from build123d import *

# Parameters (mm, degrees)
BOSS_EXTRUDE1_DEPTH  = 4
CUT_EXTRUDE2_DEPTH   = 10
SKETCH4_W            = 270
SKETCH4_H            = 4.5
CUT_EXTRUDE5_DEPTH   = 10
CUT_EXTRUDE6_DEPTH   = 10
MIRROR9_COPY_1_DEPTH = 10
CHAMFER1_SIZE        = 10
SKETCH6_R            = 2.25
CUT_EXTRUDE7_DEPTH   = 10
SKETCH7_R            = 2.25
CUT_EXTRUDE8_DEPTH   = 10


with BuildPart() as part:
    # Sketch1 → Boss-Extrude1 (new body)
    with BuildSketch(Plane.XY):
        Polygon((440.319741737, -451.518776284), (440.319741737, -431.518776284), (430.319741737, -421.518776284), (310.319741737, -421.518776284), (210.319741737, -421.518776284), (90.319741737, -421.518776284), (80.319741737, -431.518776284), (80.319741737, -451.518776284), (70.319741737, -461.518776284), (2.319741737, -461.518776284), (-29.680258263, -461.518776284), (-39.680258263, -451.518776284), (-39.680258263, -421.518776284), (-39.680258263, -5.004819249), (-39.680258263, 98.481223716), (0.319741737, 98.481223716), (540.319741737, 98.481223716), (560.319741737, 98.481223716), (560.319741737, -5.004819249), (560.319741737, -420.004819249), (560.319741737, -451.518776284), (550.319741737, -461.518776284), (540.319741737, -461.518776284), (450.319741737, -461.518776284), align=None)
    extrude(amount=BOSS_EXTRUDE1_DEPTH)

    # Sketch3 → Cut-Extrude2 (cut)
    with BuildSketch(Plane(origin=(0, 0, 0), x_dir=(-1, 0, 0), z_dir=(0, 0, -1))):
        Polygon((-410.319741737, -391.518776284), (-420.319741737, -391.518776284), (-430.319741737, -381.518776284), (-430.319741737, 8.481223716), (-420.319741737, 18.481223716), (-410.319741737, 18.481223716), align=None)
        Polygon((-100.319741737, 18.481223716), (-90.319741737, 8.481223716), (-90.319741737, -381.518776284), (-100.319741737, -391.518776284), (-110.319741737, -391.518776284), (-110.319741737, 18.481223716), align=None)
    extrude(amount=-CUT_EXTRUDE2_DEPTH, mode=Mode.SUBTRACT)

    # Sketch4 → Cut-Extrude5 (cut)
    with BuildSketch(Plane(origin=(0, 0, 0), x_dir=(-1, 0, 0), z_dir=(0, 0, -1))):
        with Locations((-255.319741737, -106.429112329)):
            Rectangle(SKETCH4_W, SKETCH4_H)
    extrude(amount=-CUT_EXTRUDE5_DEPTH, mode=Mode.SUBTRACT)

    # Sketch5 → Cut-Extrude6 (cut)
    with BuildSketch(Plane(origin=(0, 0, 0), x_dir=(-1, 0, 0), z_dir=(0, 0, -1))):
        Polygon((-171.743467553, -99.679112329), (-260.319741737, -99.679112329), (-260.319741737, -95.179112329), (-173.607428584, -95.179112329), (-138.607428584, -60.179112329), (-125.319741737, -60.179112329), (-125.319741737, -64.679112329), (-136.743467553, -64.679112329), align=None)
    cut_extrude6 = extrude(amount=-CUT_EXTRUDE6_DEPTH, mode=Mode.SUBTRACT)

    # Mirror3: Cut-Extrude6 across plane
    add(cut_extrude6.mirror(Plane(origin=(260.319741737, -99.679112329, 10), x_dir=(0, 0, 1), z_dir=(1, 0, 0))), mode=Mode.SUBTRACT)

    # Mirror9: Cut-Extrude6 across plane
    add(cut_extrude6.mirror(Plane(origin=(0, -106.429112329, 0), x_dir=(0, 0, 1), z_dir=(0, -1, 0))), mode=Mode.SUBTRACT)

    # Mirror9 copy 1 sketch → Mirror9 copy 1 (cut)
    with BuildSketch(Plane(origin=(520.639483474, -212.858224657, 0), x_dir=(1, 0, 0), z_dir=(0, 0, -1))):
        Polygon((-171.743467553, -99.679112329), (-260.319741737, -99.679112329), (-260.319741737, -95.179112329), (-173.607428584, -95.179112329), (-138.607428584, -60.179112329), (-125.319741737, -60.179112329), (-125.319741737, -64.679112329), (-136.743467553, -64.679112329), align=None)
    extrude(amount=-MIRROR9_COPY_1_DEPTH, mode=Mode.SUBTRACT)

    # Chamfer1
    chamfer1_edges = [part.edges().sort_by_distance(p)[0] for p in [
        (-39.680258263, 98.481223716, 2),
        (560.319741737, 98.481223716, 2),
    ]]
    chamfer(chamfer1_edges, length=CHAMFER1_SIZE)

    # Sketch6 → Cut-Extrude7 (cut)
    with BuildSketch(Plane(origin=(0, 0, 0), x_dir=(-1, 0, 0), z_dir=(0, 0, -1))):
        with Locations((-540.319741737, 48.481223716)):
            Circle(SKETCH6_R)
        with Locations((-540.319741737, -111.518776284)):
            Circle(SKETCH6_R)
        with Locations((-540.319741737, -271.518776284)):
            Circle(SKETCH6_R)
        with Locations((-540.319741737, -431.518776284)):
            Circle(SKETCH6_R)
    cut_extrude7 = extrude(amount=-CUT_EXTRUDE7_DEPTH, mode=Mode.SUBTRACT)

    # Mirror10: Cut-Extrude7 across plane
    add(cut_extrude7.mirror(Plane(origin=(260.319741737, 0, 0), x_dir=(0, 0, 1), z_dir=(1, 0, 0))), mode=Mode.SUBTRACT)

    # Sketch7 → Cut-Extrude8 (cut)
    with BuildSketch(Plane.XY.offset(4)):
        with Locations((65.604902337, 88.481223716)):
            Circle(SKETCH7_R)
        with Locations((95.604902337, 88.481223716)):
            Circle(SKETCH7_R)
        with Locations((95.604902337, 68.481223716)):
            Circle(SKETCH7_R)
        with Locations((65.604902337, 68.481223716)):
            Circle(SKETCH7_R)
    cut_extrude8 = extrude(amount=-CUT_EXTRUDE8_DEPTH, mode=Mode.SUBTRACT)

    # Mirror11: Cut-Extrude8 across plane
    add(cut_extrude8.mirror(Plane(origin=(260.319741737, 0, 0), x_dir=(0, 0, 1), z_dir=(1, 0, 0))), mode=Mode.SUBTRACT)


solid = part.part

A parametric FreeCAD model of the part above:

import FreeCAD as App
import Part
import Sketcher

V = App.Vector
Q = App.Units.Quantity


def edges_at(feature, points):
    """Names of the edges that pass closest to the given points."""
    edges = feature.Shape.Edges
    near = lambda p: min(range(len(edges)), key=lambda i: edges[i].distToShape(Part.Vertex(*p))[0])
    return sorted({f"Edge{near(p) + 1}" for p in points})

doc = App.newDocument("Part")
body = doc.addObject("PartDesign::Body", "Body")

# Sketch on XY plane
sketch1 = body.newObject("Sketcher::SketchObject", "Sketch")
sketch1.AttachmentSupport = (doc.getObject("XY_Plane"), [""])
sketch1.MapMode = "FlatFace"
sketch1.addGeometry(Part.LineSegment(V(440, -432, 0), V(440, -452, 0)), False)
sketch1.addGeometry(Part.LineSegment(V(440, -452, 0), V(450, -462, 0)), False)
sketch1.addGeometry(Part.LineSegment(V(450, -462, 0), V(550, -462, 0)), False)
sketch1.addGeometry(Part.LineSegment(V(550, -462, 0), V(560, -452, 0)), False)
sketch1.addGeometry(Part.LineSegment(V(560, -452, 0), V(560, 98, 0)), False)
sketch1.addGeometry(Part.LineSegment(V(560, 98, 0), V(-40, 98, 0)), False)
sketch1.addGeometry(Part.LineSegment(V(-40, 98, 0), V(-40, -452, 0)), False)
sketch1.addGeometry(Part.LineSegment(V(-40, -452, 0), V(-30, -462, 0)), False)
sketch1.addGeometry(Part.LineSegment(V(-30, -462, 0), V(70, -462, 0)), False)
sketch1.addGeometry(Part.LineSegment(V(70, -462, 0), V(80, -452, 0)), False)
sketch1.addGeometry(Part.LineSegment(V(80, -452, 0), V(80, -432, 0)), False)
sketch1.addGeometry(Part.LineSegment(V(80, -432, 0), V(90, -422, 0)), False)
sketch1.addGeometry(Part.LineSegment(V(90, -422, 0), V(430, -422, 0)), False)
sketch1.addGeometry(Part.LineSegment(V(430, -422, 0), V(440, -432, 0)), False)
sketch1.addConstraint(Sketcher.Constraint("Coincident", 0, 2, 1, 1))
sketch1.addConstraint(Sketcher.Constraint("Coincident", 1, 2, 2, 1))
sketch1.addConstraint(Sketcher.Constraint("Coincident", 2, 2, 3, 1))
sketch1.addConstraint(Sketcher.Constraint("Coincident", 3, 2, 4, 1))
sketch1.addConstraint(Sketcher.Constraint("Coincident", 4, 2, 5, 1))
sketch1.addConstraint(Sketcher.Constraint("Coincident", 5, 2, 6, 1))
sketch1.addConstraint(Sketcher.Constraint("Coincident", 6, 2, 7, 1))
sketch1.addConstraint(Sketcher.Constraint("Coincident", 7, 2, 8, 1))
sketch1.addConstraint(Sketcher.Constraint("Coincident", 8, 2, 9, 1))
sketch1.addConstraint(Sketcher.Constraint("Coincident", 9, 2, 10, 1))
sketch1.addConstraint(Sketcher.Constraint("Coincident", 10, 2, 11, 1))
sketch1.addConstraint(Sketcher.Constraint("Coincident", 11, 2, 12, 1))
sketch1.addConstraint(Sketcher.Constraint("Coincident", 12, 2, 13, 1))
sketch1.addConstraint(Sketcher.Constraint("Coincident", 13, 2, 0, 1))
sketch1.addConstraint(Sketcher.Constraint("Vertical", 0))
sketch1.addConstraint(Sketcher.Constraint("Horizontal", 2))
sketch1.addConstraint(Sketcher.Constraint("Vertical", 4))
sketch1.addConstraint(Sketcher.Constraint("Horizontal", 5))
sketch1.addConstraint(Sketcher.Constraint("Vertical", 6))
sketch1.addConstraint(Sketcher.Constraint("Horizontal", 8))
sketch1.addConstraint(Sketcher.Constraint("Vertical", 10))
sketch1.addConstraint(Sketcher.Constraint("Horizontal", 12))
sketch1.addConstraint(Sketcher.Constraint("Perpendicular", 1, 3))
sketch1.addConstraint(Sketcher.Constraint("Perpendicular", 3, 7))
sketch1.addConstraint(Sketcher.Constraint("Perpendicular", 7, 9))
sketch1.addConstraint(Sketcher.Constraint("Parallel", 9, 11))
sketch1.addConstraint(Sketcher.Constraint("Perpendicular", 11, 13))
sketch1.addConstraint(Sketcher.Constraint("Horizontal", 0, 2, 3, 2))
sketch1.addConstraint(Sketcher.Constraint("Horizontal", 3, 2, 6, 2))
sketch1.addConstraint(Sketcher.Constraint("Horizontal", 2, 2, 7, 2))
sketch1.addConstraint(Sketcher.Constraint("Horizontal", 6, 2, 9, 2))
sketch1.addConstraint(Sketcher.Constraint("Horizontal", 10, 2, 13, 2))
sketch1.addConstraint(Sketcher.Constraint("Equal", 2, 8))
sketch1.addConstraint(Sketcher.Constraint("Equal", 1, 3))
sketch1.addConstraint(Sketcher.Constraint("Equal", 9, 11))
sketch1.addConstraint(Sketcher.Constraint("DistanceX", 2, 1, 2, 2, Q("100 mm")))
sketch1.addConstraint(Sketcher.Constraint("DistanceX", 5, 2, 5, 1, Q("600 mm")))
sketch1.addConstraint(Sketcher.Constraint("DistanceX", 12, 1, 12, 2, Q("340 mm")))
sketch1.addConstraint(Sketcher.Constraint("DistanceY", 0, 2, 0, 1, Q("20 mm")))
sketch1.addConstraint(Sketcher.Constraint("DistanceY", 4, 1, 4, 2, Q("550 mm")))
sketch1.addConstraint(Sketcher.Constraint("DistanceX", -1, 1, 0, 2, Q("440.319742 mm")))
sketch1.addConstraint(Sketcher.Constraint("DistanceY", 0, 2, -1, 1, Q("451.518776 mm")))
pad1 = body.newObject("PartDesign::Pad", "Pad")
pad1.Profile = sketch1
pad1.Length = 4

# Sketch on XY plane
sketch2 = body.newObject("Sketcher::SketchObject", "Sketch001")
sketch2.AttachmentSupport = (doc.getObject("XY_Plane"), [""])
sketch2.MapMode = "FlatFace"
sketch2.addGeometry(Part.LineSegment(V(420, -392, 0), V(410, -392, 0)), False)
sketch2.addGeometry(Part.LineSegment(V(410, -392, 0), V(410, 18, 0)), False)
sketch2.addGeometry(Part.LineSegment(V(410, 18, 0), V(420, 18, 0)), False)
sketch2.addGeometry(Part.LineSegment(V(420, 18, 0), V(430, 8, 0)), False)
sketch2.addGeometry(Part.LineSegment(V(430, 8, 0), V(430, -382, 0)), False)
sketch2.addGeometry(Part.LineSegment(V(430, -382, 0), V(420, -392, 0)), False)
sketch2.addGeometry(Part.LineSegment(V(90, 8, 0), V(100, 18, 0)), False)
sketch2.addGeometry(Part.LineSegment(V(100, 18, 0), V(110, 18, 0)), False)
sketch2.addGeometry(Part.LineSegment(V(110, 18, 0), V(110, -392, 0)), False)
sketch2.addGeometry(Part.LineSegment(V(110, -392, 0), V(100, -392, 0)), False)
sketch2.addGeometry(Part.LineSegment(V(100, -392, 0), V(90, -382, 0)), False)
sketch2.addGeometry(Part.LineSegment(V(90, -382, 0), V(90, 8, 0)), False)
sketch2.addConstraint(Sketcher.Constraint("Coincident", 0, 2, 1, 1))
sketch2.addConstraint(Sketcher.Constraint("Coincident", 1, 2, 2, 1))
sketch2.addConstraint(Sketcher.Constraint("Coincident", 2, 2, 3, 1))
sketch2.addConstraint(Sketcher.Constraint("Coincident", 3, 2, 4, 1))
sketch2.addConstraint(Sketcher.Constraint("Coincident", 4, 2, 5, 1))
sketch2.addConstraint(Sketcher.Constraint("Coincident", 5, 2, 0, 1))
sketch2.addConstraint(Sketcher.Constraint("Coincident", 6, 2, 7, 1))
sketch2.addConstraint(Sketcher.Constraint("Coincident", 7, 2, 8, 1))
sketch2.addConstraint(Sketcher.Constraint("Coincident", 8, 2, 9, 1))
sketch2.addConstraint(Sketcher.Constraint("Coincident", 9, 2, 10, 1))
sketch2.addConstraint(Sketcher.Constraint("Coincident", 10, 2, 11, 1))
sketch2.addConstraint(Sketcher.Constraint("Coincident", 11, 2, 6, 1))
sketch2.addConstraint(Sketcher.Constraint("Horizontal", 0))
sketch2.addConstraint(Sketcher.Constraint("Vertical", 1))
sketch2.addConstraint(Sketcher.Constraint("Horizontal", 2))
sketch2.addConstraint(Sketcher.Constraint("Vertical", 4))
sketch2.addConstraint(Sketcher.Constraint("Horizontal", 7))
sketch2.addConstraint(Sketcher.Constraint("Vertical", 8))
sketch2.addConstraint(Sketcher.Constraint("Horizontal", 9))
sketch2.addConstraint(Sketcher.Constraint("Vertical", 11))
sketch2.addConstraint(Sketcher.Constraint("Perpendicular", 3, 5))
sketch2.addConstraint(Sketcher.Constraint("Parallel", 5, 6))
sketch2.addConstraint(Sketcher.Constraint("Perpendicular", 6, 10))
sketch2.addConstraint(Sketcher.Constraint("Horizontal", 2, 2, 6, 2))
sketch2.addConstraint(Sketcher.Constraint("Horizontal", 5, 2, 8, 2))
sketch2.addConstraint(Sketcher.Constraint("Horizontal", 4, 2, 10, 2))
sketch2.addConstraint(Sketcher.Constraint("Horizontal", 3, 2, 11, 2))
sketch2.addConstraint(Sketcher.Constraint("Vertical", 2, 2, 5, 2))
sketch2.addConstraint(Sketcher.Constraint("Vertical", 6, 2, 9, 2))
sketch2.addConstraint(Sketcher.Constraint("Equal", 2, 7))
sketch2.addConstraint(Sketcher.Constraint("DistanceX", 0, 2, 0, 1, Q("10 mm")))
sketch2.addConstraint(Sketcher.Constraint("DistanceY", 1, 1, 1, 2, Q("410 mm")))
sketch2.addConstraint(Sketcher.Constraint("DistanceY", 4, 2, 4, 1, Q("390 mm")))
sketch2.addConstraint(Sketcher.Constraint("DistanceX", 6, 2, 1, 2, Q("310 mm")))
sketch2.addConstraint(Sketcher.Constraint("DistanceX", -1, 1, 0, 2, Q("410.319742 mm")))
sketch2.addConstraint(Sketcher.Constraint("DistanceY", 0, 2, -1, 1, Q("391.518776 mm")))
pocket1 = body.newObject("PartDesign::Pocket", "Pocket")
pocket1.Profile = sketch2
pocket1.Length = 10
pocket1.Reversed = True

# Sketch on XY plane
sketch3 = body.newObject("Sketcher::SketchObject", "Sketch002")
sketch3.AttachmentSupport = (doc.getObject("XY_Plane"), [""])
sketch3.MapMode = "FlatFace"
sketch3.addGeometry(Part.LineSegment(V(390.3, -104.2, 0), V(390.3, -108.7, 0)), False)
sketch3.addGeometry(Part.LineSegment(V(390.3, -108.7, 0), V(120.3, -108.7, 0)), False)
sketch3.addGeometry(Part.LineSegment(V(120.3, -108.7, 0), V(120.3, -104.2, 0)), False)
sketch3.addGeometry(Part.LineSegment(V(120.3, -104.2, 0), V(390.3, -104.2, 0)), False)
sketch3.addConstraint(Sketcher.Constraint("Coincident", 0, 2, 1, 1))
sketch3.addConstraint(Sketcher.Constraint("Coincident", 1, 2, 2, 1))
sketch3.addConstraint(Sketcher.Constraint("Coincident", 2, 2, 3, 1))
sketch3.addConstraint(Sketcher.Constraint("Coincident", 3, 2, 0, 1))
sketch3.addConstraint(Sketcher.Constraint("Vertical", 0))
sketch3.addConstraint(Sketcher.Constraint("Horizontal", 1))
sketch3.addConstraint(Sketcher.Constraint("Vertical", 2))
sketch3.addConstraint(Sketcher.Constraint("Horizontal", 3))
sketch3.addConstraint(Sketcher.Constraint("DistanceX", 1, 2, 1, 1, Q("270 mm")))
sketch3.addConstraint(Sketcher.Constraint("DistanceY", 0, 2, 0, 1, Q("4.5 mm")))
sketch3.addConstraint(Sketcher.Constraint("DistanceX", -1, 1, 0, 2, Q("390.319742 mm")))
sketch3.addConstraint(Sketcher.Constraint("DistanceY", 0, 2, -1, 1, Q("108.679112 mm")))
pocket2 = body.newObject("PartDesign::Pocket", "Pocket001")
pocket2.Profile = sketch3
pocket2.Length = 10
pocket2.Reversed = True

# Sketch on XY plane
sketch4 = body.newObject("Sketcher::SketchObject", "Sketch003")
sketch4.AttachmentSupport = (doc.getObject("XY_Plane"), [""])
sketch4.MapMode = "FlatFace"
sketch4.addGeometry(Part.LineSegment(V(260.3, -99.7, 0), V(171.7, -99.7, 0)), False)
sketch4.addGeometry(Part.LineSegment(V(171.7, -99.7, 0), V(136.7, -64.7, 0)), False)
sketch4.addGeometry(Part.LineSegment(V(136.7, -64.7, 0), V(125.3, -64.7, 0)), False)
sketch4.addGeometry(Part.LineSegment(V(125.3, -64.7, 0), V(125.3, -60.2, 0)), False)
sketch4.addGeometry(Part.LineSegment(V(125.3, -60.2, 0), V(138.6, -60.2, 0)), False)
sketch4.addGeometry(Part.LineSegment(V(138.6, -60.2, 0), V(173.6, -95.2, 0)), False)
sketch4.addGeometry(Part.LineSegment(V(173.6, -95.2, 0), V(260.3, -95.2, 0)), False)
sketch4.addGeometry(Part.LineSegment(V(260.3, -95.2, 0), V(260.3, -99.7, 0)), False)
sketch4.addConstraint(Sketcher.Constraint("Coincident", 0, 2, 1, 1))
sketch4.addConstraint(Sketcher.Constraint("Coincident", 1, 2, 2, 1))
sketch4.addConstraint(Sketcher.Constraint("Coincident", 2, 2, 3, 1))
sketch4.addConstraint(Sketcher.Constraint("Coincident", 3, 2, 4, 1))
sketch4.addConstraint(Sketcher.Constraint("Coincident", 4, 2, 5, 1))
sketch4.addConstraint(Sketcher.Constraint("Coincident", 5, 2, 6, 1))
sketch4.addConstraint(Sketcher.Constraint("Coincident", 6, 2, 7, 1))
sketch4.addConstraint(Sketcher.Constraint("Coincident", 7, 2, 0, 1))
sketch4.addConstraint(Sketcher.Constraint("Horizontal", 0))
sketch4.addConstraint(Sketcher.Constraint("Horizontal", 2))
sketch4.addConstraint(Sketcher.Constraint("Vertical", 3))
sketch4.addConstraint(Sketcher.Constraint("Horizontal", 4))
sketch4.addConstraint(Sketcher.Constraint("Horizontal", 6))
sketch4.addConstraint(Sketcher.Constraint("Vertical", 7))
sketch4.addConstraint(Sketcher.Constraint("Parallel", 1, 5))
sketch4.addConstraint(Sketcher.Constraint("Equal", 3, 7))
sketch4.addConstraint(Sketcher.Constraint("Angle", 1, Q("135 deg")))
sketch4.addConstraint(Sketcher.Constraint("DistanceY", 3, 1, 3, 2, Q("4.5 mm")))
sketch4.addConstraint(Sketcher.Constraint("DistanceX", 1, 2, 0, 2, Q("35 mm")))
sketch4.addConstraint(Sketcher.Constraint("DistanceX", 2, 2, 6, 2, Q("135 mm")))
sketch4.addConstraint(Sketcher.Constraint("DistanceX", 0, 2, 0, 1, Q("88.576274 mm")))
sketch4.addConstraint(Sketcher.Constraint("DistanceX", 4, 1, 4, 2, Q("13.287687 mm")))
sketch4.addConstraint(Sketcher.Constraint("DistanceX", -1, 1, 2, 2, Q("125.319742 mm")))
sketch4.addConstraint(Sketcher.Constraint("DistanceY", 0, 2, -1, 1, Q("99.679112 mm")))
pocket3 = body.newObject("PartDesign::Pocket", "Pocket002")
pocket3.Profile = sketch4
pocket3.Length = 10
pocket3.Reversed = True
doc.recompute()

datumplane = body.newObject("PartDesign::Plane", "DatumPlane")
datumplane.AttachmentSupport = (doc.getObject("YZ_Plane"), [""])
datumplane.MapMode = "FlatFace"
datumplane.AttachmentOffset = App.Placement(V(0, 0, 260.319742), App.Rotation())
mirrored = body.newObject("PartDesign::Mirrored", "Mirrored")
mirrored.Originals = [pocket3]
mirrored.MirrorPlane = (datumplane, [""])
body.Tip = mirrored
doc.recompute()

datumplane2 = body.newObject("PartDesign::Plane", "DatumPlane001")
datumplane2.AttachmentSupport = (doc.getObject("XZ_Plane"), [""])
datumplane2.MapMode = "FlatFace"
datumplane2.AttachmentOffset = App.Placement(V(0, 0, 106.429112), App.Rotation())
mirrored2 = body.newObject("PartDesign::Mirrored", "Mirrored001")
mirrored2.Originals = [pocket3]
mirrored2.MirrorPlane = (datumplane2, [""])
body.Tip = mirrored2

# Sketch on XY plane
sketch5 = body.newObject("Sketcher::SketchObject", "Sketch004")
sketch5.AttachmentSupport = (doc.getObject("XY_Plane"), [""])
sketch5.MapMode = "FlatFace"
sketch5.addGeometry(Part.LineSegment(V(260.3, -113.2, 0), V(348.9, -113.2, 0)), False)
sketch5.addGeometry(Part.LineSegment(V(348.9, -113.2, 0), V(383.9, -148.2, 0)), False)
sketch5.addGeometry(Part.LineSegment(V(383.9, -148.2, 0), V(395.3, -148.2, 0)), False)
sketch5.addGeometry(Part.LineSegment(V(395.3, -148.2, 0), V(395.3, -152.7, 0)), False)
sketch5.addGeometry(Part.LineSegment(V(395.3, -152.7, 0), V(382, -152.7, 0)), False)
sketch5.addGeometry(Part.LineSegment(V(382, -152.7, 0), V(347, -117.7, 0)), False)
sketch5.addGeometry(Part.LineSegment(V(347, -117.7, 0), V(260.3, -117.7, 0)), False)
sketch5.addGeometry(Part.LineSegment(V(260.3, -117.7, 0), V(260.3, -113.2, 0)), False)
sketch5.addConstraint(Sketcher.Constraint("Coincident", 0, 2, 1, 1))
sketch5.addConstraint(Sketcher.Constraint("Coincident", 1, 2, 2, 1))
sketch5.addConstraint(Sketcher.Constraint("Coincident", 2, 2, 3, 1))
sketch5.addConstraint(Sketcher.Constraint("Coincident", 3, 2, 4, 1))
sketch5.addConstraint(Sketcher.Constraint("Coincident", 4, 2, 5, 1))
sketch5.addConstraint(Sketcher.Constraint("Coincident", 5, 2, 6, 1))
sketch5.addConstraint(Sketcher.Constraint("Coincident", 6, 2, 7, 1))
sketch5.addConstraint(Sketcher.Constraint("Coincident", 7, 2, 0, 1))
sketch5.addConstraint(Sketcher.Constraint("Horizontal", 0))
sketch5.addConstraint(Sketcher.Constraint("Horizontal", 2))
sketch5.addConstraint(Sketcher.Constraint("Vertical", 3))
sketch5.addConstraint(Sketcher.Constraint("Horizontal", 4))
sketch5.addConstraint(Sketcher.Constraint("Horizontal", 6))
sketch5.addConstraint(Sketcher.Constraint("Vertical", 7))
sketch5.addConstraint(Sketcher.Constraint("Parallel", 1, 5))
sketch5.addConstraint(Sketcher.Constraint("Equal", 3, 7))
sketch5.addConstraint(Sketcher.Constraint("Angle", 1, Q("-45 deg")))
sketch5.addConstraint(Sketcher.Constraint("DistanceY", 3, 2, 3, 1, Q("4.5 mm")))
sketch5.addConstraint(Sketcher.Constraint("DistanceX", 0, 2, 1, 2, Q("35 mm")))
sketch5.addConstraint(Sketcher.Constraint("DistanceX", 6, 2, 2, 2, Q("135 mm")))
sketch5.addConstraint(Sketcher.Constraint("DistanceX", 0, 1, 0, 2, Q("88.576274 mm")))
sketch5.addConstraint(Sketcher.Constraint("DistanceX", 4, 2, 4, 1, Q("13.287687 mm")))
sketch5.addConstraint(Sketcher.Constraint("DistanceX", -1, 1, 2, 2, Q("395.319742 mm")))
sketch5.addConstraint(Sketcher.Constraint("DistanceY", 0, 2, -1, 1, Q("113.179112 mm")))
pocket4 = body.newObject("PartDesign::Pocket", "Pocket003")
pocket4.Profile = sketch5
pocket4.Length = 10
pocket4.Reversed = True
doc.recompute()

chamfer = body.newObject("PartDesign::Chamfer", "Chamfer")
chamfer.Base = (pocket4, edges_at(pocket4, [(-39.68, 98.481, 2), (560.32, 98.481, 2)]))
chamfer.Size = 10

# Sketch on XY plane
sketch6 = body.newObject("Sketcher::SketchObject", "Sketch005")
sketch6.AttachmentSupport = (doc.getObject("XY_Plane"), [""])
sketch6.MapMode = "FlatFace"
sketch6.addGeometry(Part.Circle(V(540.3, 48.5, 0), V(0, 0, 1), 2.2), False)
sketch6.addGeometry(Part.Circle(V(540.3, -111.5, 0), V(0, 0, 1), 2.2), False)
sketch6.addGeometry(Part.Circle(V(540.3, -271.5, 0), V(0, 0, 1), 2.2), False)
sketch6.addGeometry(Part.Circle(V(540.3, -431.5, 0), V(0, 0, 1), 2.2), False)
sketch6.addConstraint(Sketcher.Constraint("Equal", 0, 1))
sketch6.addConstraint(Sketcher.Constraint("Equal", 1, 2))
sketch6.addConstraint(Sketcher.Constraint("Equal", 2, 3))
sketch6.addConstraint(Sketcher.Constraint("Vertical", 0, 3, 1, 3))
sketch6.addConstraint(Sketcher.Constraint("Vertical", 1, 3, 2, 3))
sketch6.addConstraint(Sketcher.Constraint("Vertical", 2, 3, 3, 3))
sketch6.addConstraint(Sketcher.Constraint("Diameter", 0, Q("4.5 mm")))
sketch6.addConstraint(Sketcher.Constraint("DistanceY", 1, 3, 0, 3, Q("160 mm")))
sketch6.addConstraint(Sketcher.Constraint("DistanceY", 2, 3, 1, 3, Q("160 mm")))
sketch6.addConstraint(Sketcher.Constraint("DistanceY", 3, 3, 2, 3, Q("160 mm")))
sketch6.addConstraint(Sketcher.Constraint("DistanceX", -1, 1, 0, 3, Q("540.319742 mm")))
sketch6.addConstraint(Sketcher.Constraint("DistanceY", -1, 1, 0, 3, Q("48.481224 mm")))
pocket5 = body.newObject("PartDesign::Pocket", "Pocket004")
pocket5.Profile = sketch6
pocket5.Length = 10
pocket5.Reversed = True
doc.recompute()

datumplane3 = body.newObject("PartDesign::Plane", "DatumPlane002")
datumplane3.AttachmentSupport = (doc.getObject("YZ_Plane"), [""])
datumplane3.MapMode = "FlatFace"
datumplane3.AttachmentOffset = App.Placement(V(0, 0, 260.319742), App.Rotation())
mirrored3 = body.newObject("PartDesign::Mirrored", "Mirrored002")
mirrored3.Originals = [pocket5]
mirrored3.MirrorPlane = (datumplane3, [""])
body.Tip = mirrored3

# Sketch on XY plane
sketch7 = body.newObject("Sketcher::SketchObject", "Sketch006")
sketch7.AttachmentSupport = (doc.getObject("XY_Plane"), [""])
sketch7.MapMode = "FlatFace"
sketch7.AttachmentOffset = App.Placement(V(0, 0, 4), App.Rotation())
sketch7.addGeometry(Part.Circle(V(65.6, 88.5, 0), V(0, 0, 1), 2.2), False)
sketch7.addGeometry(Part.Circle(V(95.6, 88.5, 0), V(0, 0, 1), 2.2), False)
sketch7.addGeometry(Part.Circle(V(95.6, 68.5, 0), V(0, 0, 1), 2.2), False)
sketch7.addGeometry(Part.Circle(V(65.6, 68.5, 0), V(0, 0, 1), 2.2), False)
sketch7.addConstraint(Sketcher.Constraint("Equal", 0, 1))
sketch7.addConstraint(Sketcher.Constraint("Equal", 1, 2))
sketch7.addConstraint(Sketcher.Constraint("Equal", 2, 3))
sketch7.addConstraint(Sketcher.Constraint("Horizontal", 0, 3, 1, 3))
sketch7.addConstraint(Sketcher.Constraint("Horizontal", 2, 3, 3, 3))
sketch7.addConstraint(Sketcher.Constraint("Vertical", 1, 3, 2, 3))
sketch7.addConstraint(Sketcher.Constraint("Vertical", 0, 3, 3, 3))
sketch7.addConstraint(Sketcher.Constraint("Diameter", 0, Q("4.5 mm")))
sketch7.addConstraint(Sketcher.Constraint("DistanceX", 0, 3, 1, 3, Q("30 mm")))
sketch7.addConstraint(Sketcher.Constraint("DistanceY", 2, 3, 1, 3, Q("20 mm")))
sketch7.addConstraint(Sketcher.Constraint("DistanceX", -1, 1, 0, 3, Q("65.604902 mm")))
sketch7.addConstraint(Sketcher.Constraint("DistanceY", -1, 1, 0, 3, Q("88.481224 mm")))
pocket6 = body.newObject("PartDesign::Pocket", "Pocket005")
pocket6.Profile = sketch7
pocket6.Length = 10
doc.recompute()

datumplane4 = body.newObject("PartDesign::Plane", "DatumPlane003")
datumplane4.AttachmentSupport = (doc.getObject("YZ_Plane"), [""])
datumplane4.MapMode = "FlatFace"
datumplane4.AttachmentOffset = App.Placement(V(0, 0, 260.319742), App.Rotation())
mirrored4 = body.newObject("PartDesign::Mirrored", "Mirrored003")
mirrored4.Originals = [pocket6]
mirrored4.MirrorPlane = (datumplane4, [""])
body.Tip = mirrored4

doc.recompute()
